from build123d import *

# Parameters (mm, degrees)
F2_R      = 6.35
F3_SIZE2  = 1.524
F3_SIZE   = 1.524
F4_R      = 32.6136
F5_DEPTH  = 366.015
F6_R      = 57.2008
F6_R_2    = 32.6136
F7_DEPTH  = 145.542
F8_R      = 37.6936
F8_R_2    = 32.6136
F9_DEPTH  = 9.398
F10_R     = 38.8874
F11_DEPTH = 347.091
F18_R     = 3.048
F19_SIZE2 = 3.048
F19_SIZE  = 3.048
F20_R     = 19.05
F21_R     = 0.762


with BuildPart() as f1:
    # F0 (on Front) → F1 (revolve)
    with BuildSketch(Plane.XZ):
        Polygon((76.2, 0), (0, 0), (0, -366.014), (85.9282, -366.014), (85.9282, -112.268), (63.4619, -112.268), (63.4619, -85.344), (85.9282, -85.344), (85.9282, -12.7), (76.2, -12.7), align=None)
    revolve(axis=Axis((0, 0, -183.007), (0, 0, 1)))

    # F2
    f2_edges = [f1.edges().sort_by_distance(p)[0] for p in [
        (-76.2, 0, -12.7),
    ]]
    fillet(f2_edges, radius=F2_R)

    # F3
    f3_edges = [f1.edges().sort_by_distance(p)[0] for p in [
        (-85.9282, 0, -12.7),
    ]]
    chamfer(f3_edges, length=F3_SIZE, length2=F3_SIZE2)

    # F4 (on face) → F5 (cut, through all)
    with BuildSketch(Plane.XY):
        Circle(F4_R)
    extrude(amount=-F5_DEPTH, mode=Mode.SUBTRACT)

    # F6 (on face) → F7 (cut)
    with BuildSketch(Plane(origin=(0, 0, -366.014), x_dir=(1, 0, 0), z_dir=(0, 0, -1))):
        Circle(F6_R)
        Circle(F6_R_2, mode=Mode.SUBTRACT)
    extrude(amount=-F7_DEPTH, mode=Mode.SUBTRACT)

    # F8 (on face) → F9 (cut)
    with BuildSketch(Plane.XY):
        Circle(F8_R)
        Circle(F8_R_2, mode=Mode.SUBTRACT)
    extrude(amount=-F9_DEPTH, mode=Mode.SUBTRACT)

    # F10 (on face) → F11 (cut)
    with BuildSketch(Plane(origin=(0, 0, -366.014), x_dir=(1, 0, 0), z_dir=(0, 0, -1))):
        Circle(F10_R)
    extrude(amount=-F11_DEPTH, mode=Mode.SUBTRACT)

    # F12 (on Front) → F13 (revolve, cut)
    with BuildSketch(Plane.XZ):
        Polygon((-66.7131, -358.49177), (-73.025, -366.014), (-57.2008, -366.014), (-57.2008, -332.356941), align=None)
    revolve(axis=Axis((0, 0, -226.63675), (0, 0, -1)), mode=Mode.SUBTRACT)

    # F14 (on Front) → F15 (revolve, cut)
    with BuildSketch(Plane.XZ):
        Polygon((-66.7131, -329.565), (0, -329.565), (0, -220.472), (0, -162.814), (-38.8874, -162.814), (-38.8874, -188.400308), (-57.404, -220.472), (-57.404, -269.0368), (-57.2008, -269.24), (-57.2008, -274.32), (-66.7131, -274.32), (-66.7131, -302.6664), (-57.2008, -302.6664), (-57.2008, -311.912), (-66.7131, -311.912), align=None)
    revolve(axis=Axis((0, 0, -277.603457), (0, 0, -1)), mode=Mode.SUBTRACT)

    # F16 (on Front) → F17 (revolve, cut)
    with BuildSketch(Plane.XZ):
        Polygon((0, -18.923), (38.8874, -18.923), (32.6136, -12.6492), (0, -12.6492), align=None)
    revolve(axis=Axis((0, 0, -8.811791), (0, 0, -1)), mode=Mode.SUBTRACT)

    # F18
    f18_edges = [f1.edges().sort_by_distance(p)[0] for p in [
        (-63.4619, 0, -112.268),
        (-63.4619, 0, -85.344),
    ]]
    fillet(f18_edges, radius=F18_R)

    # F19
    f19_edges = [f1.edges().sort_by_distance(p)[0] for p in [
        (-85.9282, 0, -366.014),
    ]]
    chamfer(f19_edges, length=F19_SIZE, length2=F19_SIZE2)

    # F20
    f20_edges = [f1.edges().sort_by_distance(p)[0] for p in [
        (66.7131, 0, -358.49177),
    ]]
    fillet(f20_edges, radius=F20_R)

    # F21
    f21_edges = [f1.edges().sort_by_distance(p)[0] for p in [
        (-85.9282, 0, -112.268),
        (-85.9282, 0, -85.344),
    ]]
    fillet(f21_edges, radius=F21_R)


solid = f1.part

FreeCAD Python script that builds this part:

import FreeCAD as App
import Part
import Sketcher
Q = App.Units.Quantity


def edges_at(feature, points):
    """Names of the edges that pass closest to the given points."""
    edges = feature.Shape.Edges
    near = lambda p: min(range(len(edges)), key=lambda i: edges[i].distToShape(Part.Vertex(*p))[0])
    return sorted({f"Edge{near(p) + 1}" for p in points})


def add_polygon(sketch, points):
    """Adds a closed chain of lines whose ends are joined by coincident constraints."""
    first, n = sketch.GeometryCount, len(points)
    for a, b in zip(points, points[1:] + points[:1]):
        sketch.addGeometry(Part.LineSegment(App.Vector(*a, 0), App.Vector(*b, 0)), False)
    for i in range(n):
        sketch.addConstraint(Sketcher.Constraint("Coincident", first + i, 2, first + (i + 1) % n, 1))

doc = App.newDocument("Part")
params = doc.addObject("Spreadsheet::Sheet", "Params")
for row, (alias, value) in enumerate([
    ("sketch1_width", "3 in"),
    ("sketch1_height", "0.5 in"),
    ("sketch1_height2", "14.41 in"),
    ("sketch1_height3", "9.99 in"),
    ("sketch1_height4", "1.06 in"),
    ("revolution_angle", "360 deg"),
    ("fillet_radius", "0.25 in"),
    ("chamfer_size", "0.06 in"),
    ("chamfer_size2", "0.06 in"),
    ("sketch2_diameter", "2.568 in"),
    ("sketch3_diameter", "4.504 in"),
    ("sketch3_diameter2", "2.568 in"),
    ("pocket2_length", "5.73 in"),
    ("sketch4_diameter", "2.968 in"),
    ("sketch4_diameter2", "2.568 in"),
    ("pocket3_length", "0.37 in"),
    ("sketch5_diameter", "3.062 in"),
    ("pocket4_length", "13.665 in"),
    ("sketch6_width", "0.623 in"),
    ("groove_angle", "360 deg"),
    ("sketch7_height", "0.2 in"),
    ("sketch7_width", "1.531 in"),
    ("sketch7_height2", "6.565 in"),
    ("sketch7_height3", "1.912 in"),
    ("sketch7_height4", "1.116 in"),
    ("groove2_angle", "360 deg"),
    ("sketch8_width", "1.531 in"),
    ("sketch8_width2", "1.284 in"),
    ("groove3_angle", "360 deg"),
    ("fillet2_radius", "0.12 in"),
    ("chamfer2_size", "0.12 in"),
    ("chamfer2_size2", "0.12 in"),
    ("fillet3_radius", "0.75 in"),
    ("fillet4_radius", "0.03 in"),
], start=1):
    params.set(f"A{row}", alias)
    params.set(f"B{row}", "=" + value)
    params.setAlias(f"B{row}", alias)

body = doc.addObject("PartDesign::Body", "Body")

# Sketch on XZ plane
sketch1 = body.newObject("Sketcher::SketchObject", "Sketch")
sketch1.AttachmentSupport = (doc.getObject("XZ_Plane"), [""])
sketch1.MapMode = "FlatFace"
add_polygon(sketch1, [(76, 0), (0, 0), (0, -366), (86, -366), (86, -112), (63, -112), (63, -85), (86, -85), (86, -13), (76, -13)])  # lines 0-9
sketch1.addConstraint([
    Sketcher.Constraint("Horizontal", 0),
    Sketcher.Constraint("Vertical", 1),
    Sketcher.Constraint("Horizontal", 2),
    Sketcher.Constraint("Vertical", 3),
    Sketcher.Constraint("Horizontal", 4),
    Sketcher.Constraint("Vertical", 5),
    Sketcher.Constraint("Horizontal", 6),
    Sketcher.Constraint("Vertical", 7),
    Sketcher.Constraint("Horizontal", 8),
    Sketcher.Constraint("Vertical", 9),
    Sketcher.Constraint("Coincident", 0, 2, -1, 1),
    Sketcher.Constraint("Vertical", 3, 2, 6, 2),
    Sketcher.Constraint("DistanceX", 0, 2, 0, 1, Q("3 in")),
    Sketcher.Constraint("DistanceY", 9, 1, 9, 2, Q("0.5 in")),
    Sketcher.Constraint("DistanceY", 1, 2, 1, 1, Q("14.41 in")),
    Sketcher.Constraint("DistanceY", 3, 1, 3, 2, Q("9.99 in")),
    Sketcher.Constraint("DistanceY", 5, 1, 5, 2, Q("1.06 in")),
    Sketcher.Constraint("DistanceX", 2, 1, 2, 2, Q("3.383 in")),
    Sketcher.Constraint("DistanceX", 4, 2, 4, 1, Q("0.8845 in")),
])
sketch1.setExpression("Constraints[22]", "Params.sketch1_width")
sketch1.setExpression("Constraints[23]", "Params.sketch1_height")
sketch1.setExpression("Constraints[24]", "Params.sketch1_height2")
sketch1.setExpression("Constraints[25]", "Params.sketch1_height3")
sketch1.setExpression("Constraints[26]", "Params.sketch1_height4")
revolution = body.newObject("PartDesign::Revolution", "Revolution")
revolution.Profile = sketch1
revolution.ReferenceAxis = (sketch1, ["V_Axis"])
revolution.setExpression("Angle", "Params.revolution_angle")
doc.recompute()

fillet = body.newObject("PartDesign::Fillet", "Fillet")
fillet.Base = (revolution, edges_at(revolution, [(-76.2, 0, -12.7)]))
fillet.setExpression("Radius", "Params.fillet_radius")
doc.recompute()

chamfer = body.newObject("PartDesign::Chamfer", "Chamfer")
chamfer.Base = (fillet, edges_at(fillet, [(-85.928, 0, -12.7)]))
chamfer.ChamferType = "Two distances"
chamfer.setExpression("Size", "Params.chamfer_size")
chamfer.setExpression("Size2", "Params.chamfer_size2")

# Sketch on XY plane
sketch2 = body.newObject("Sketcher::SketchObject", "Sketch001")
sketch2.AttachmentSupport = (doc.getObject("XY_Plane"), [""])
sketch2.MapMode = "FlatFace"
sketch2.addGeometry(Part.Circle(App.Vector(0, 0, 0), App.Vector(0, 0, 1), 33), False)
sketch2.addConstraint([
    Sketcher.Constraint("Coincident", 0, 3, -1, 1),
    Sketcher.Constraint("Diameter", 0, Q("2.568 in")),
])
sketch2.setExpression("Constraints[1]", "Params.sketch2_diameter")
pocket1 = body.newObject("PartDesign::Pocket", "Pocket")
pocket1.Profile = sketch2
pocket1.Type = "ThroughAll"

# Sketch on XY plane
sketch3 = body.newObject("Sketcher::SketchObject", "Sketch002")
sketch3.AttachmentSupport = (doc.getObject("XY_Plane"), [""])
sketch3.MapMode = "FlatFace"
sketch3.AttachmentOffset = App.Placement(App.Vector(0, 0, -14.41 * 25.4), App.Rotation())
sketch3.addGeometry([
    Part.Circle(App.Vector(0, 0, 0), App.Vector(0, 0, 1), 57),
    Part.Circle(App.Vector(0, 0, 0), App.Vector(0, 0, 1), 33),
], False)
sketch3.addConstraint([
    Sketcher.Constraint("Coincident", 0, 3, -1, 1),
    Sketcher.Constraint("Coincident", 1, 3, -1, 1),
    Sketcher.Constraint("Diameter", 0, Q("4.504 in")),
    Sketcher.Constraint("Diameter", 1, Q("2.568 in")),
])
sketch3.setExpression("Constraints[2]", "Params.sketch3_diameter")
sketch3.setExpression("Constraints[3]", "Params.sketch3_diameter2")
pocket2 = body.newObject("PartDesign::Pocket", "Pocket001")
pocket2.Profile = sketch3
pocket2.setExpression("Length", "Params.pocket2_length")
pocket2.Reversed = True

# Sketch on XY plane
sketch4 = body.newObject("Sketcher::SketchObject", "Sketch003")
sketch4.AttachmentSupport = (doc.getObject("XY_Plane"), [""])
sketch4.MapMode = "FlatFace"
sketch4.addGeometry([
    Part.Circle(App.Vector(0, 0, 0), App.Vector(0, 0, 1), 38),
    Part.Circle(App.Vector(0, 0, 0), App.Vector(0, 0, 1), 33),
], False)
sketch4.addConstraint([
    Sketcher.Constraint("Coincident", 0, 3, -1, 1),
    Sketcher.Constraint("Coincident", 1, 3, -1, 1),
    Sketcher.Constraint("Diameter", 0, Q("2.968 in")),
    Sketcher.Constraint("Diameter", 1, Q("2.568 in")),
])
sketch4.setExpression("Constraints[2]", "Params.sketch4_diameter")
sketch4.setExpression("Constraints[3]", "Params.sketch4_diameter2")
pocket3 = body.newObject("PartDesign::Pocket", "Pocket002")
pocket3.Profile = sketch4
pocket3.setExpression("Length", "Params.pocket3_length")

# Sketch on XY plane
sketch5 = body.newObject("Sketcher::SketchObject", "Sketch004")
sketch5.AttachmentSupport = (doc.getObject("XY_Plane"), [""])
sketch5.MapMode = "FlatFace"
sketch5.AttachmentOffset = App.Placement(App.Vector(0, 0, -14.41 * 25.4), App.Rotation())
sketch5.addGeometry(Part.Circle(App.Vector(0, 0, 0), App.Vector(0, 0, 1), 39), False)
sketch5.addConstraint([
    Sketcher.Constraint("Coincident", 0, 3, -1, 1),
    Sketcher.Constraint("Diameter", 0, Q("3.062 in")),
])
sketch5.setExpression("Constraints[1]", "Params.sketch5_diameter")
pocket4 = body.newObject("PartDesign::Pocket", "Pocket003")
pocket4.Profile = sketch5
pocket4.setExpression("Length", "Params.pocket4_length")
pocket4.Reversed = True

# Sketch on XZ plane
sketch6 = body.newObject("Sketcher::SketchObject", "Sketch005")
sketch6.AttachmentSupport = (doc.getObject("XZ_Plane"), [""])
sketch6.MapMode = "FlatFace"
add_polygon(sketch6, [(-67, -358), (-73, -366), (-57, -366), (-57, -332)])  # lines 0-3
sketch6.addConstraint([
    Sketcher.Constraint("Horizontal", 1),
    Sketcher.Constraint("Vertical", 2),
    Sketcher.Constraint("Angle", 0, Q("-129.999998 deg")),
    Sketcher.Constraint("Angle", 3, Q("-110 deg")),
    Sketcher.Constraint("DistanceX", 1, 1, 1, 2, Q("0.623 in")),
    Sketcher.Constraint("DistanceY", 0, 2, -1, 1, Q("14.41 in")),
    Sketcher.Constraint("DistanceX", 0, 2, -1, 1, Q("2.875 in")),
    Sketcher.Constraint("DistanceX", 3, 2, -1, 1, Q("2.6265 in")),
])
sketch6.setExpression("Constraints[8]", "Params.sketch6_width")
groove = body.newObject("PartDesign::Groove", "Groove")
groove.Profile = sketch6
groove.ReferenceAxis = (sketch6, ["V_Axis"])
groove.setExpression("Angle", "Params.groove_angle")

# Sketch on XZ plane
sketch7 = body.newObject("Sketcher::SketchObject", "Sketch006")
sketch7.AttachmentSupport = (doc.getObject("XZ_Plane"), [""])
sketch7.MapMode = "FlatFace"
add_polygon(sketch7, [(-66.71, -329.56), (0, -329.56), (0, -162.81), (-38.89, -162.81), (-38.89, -188.4), (-57.4, -220.47), (-57.4, -269.04), (-57.2, -269.24), (-57.2, -274.32), (-66.71, -274.32), (-66.71, -302.67), (-57.2, -302.67), (-57.2, -311.91), (-66.71, -311.91)])  # lines 0-13
sketch7.addConstraint([
    Sketcher.Constraint("Horizontal", 0),
    Sketcher.Constraint("Vertical", 1),
    Sketcher.Constraint("Horizontal", 2),
    Sketcher.Constraint("Vertical", 3),
    Sketcher.Constraint("Vertical", 5),
    Sketcher.Constraint("Vertical", 7),
    Sketcher.Constraint("Horizontal", 8),
    Sketcher.Constraint("Vertical", 9),
    Sketcher.Constraint("Horizontal", 10),
    Sketcher.Constraint("Vertical", 11),
    Sketcher.Constraint("Horizontal", 12),
    Sketcher.Constraint("Vertical", 13),
    Sketcher.Constraint("PointOnObject", 0, 2, -2),
    Sketcher.Constraint("Vertical", 7, 2, 10, 2),
    Sketcher.Constraint("Vertical", 9, 2, 12, 2),
    Sketcher.Constraint("DistanceY", 7, 2, 7, 1, Q("0.2 in")),
    Sketcher.Constraint("Angle", 4, Q("-120 deg")),
    Sketcher.Constraint("Angle", 6, Q("-45 deg")),
    Sketcher.Constraint("DistanceY", 6, 2, -1, 1, Q("10.6 in")),
    Sketcher.Constraint("DistanceX", 2, 2, 2, 1, Q("1.531 in")),
    Sketcher.Constraint("DistanceY", 1, 1, 1, 2, Q("6.565 in")),
    Sketcher.Constraint("DistanceY", 5, 2, 5, 1, Q("1.912 in")),
    Sketcher.Constraint("DistanceY", 9, 2, 9, 1, Q("1.116 in")),
    Sketcher.Constraint("DistanceY", 11, 2, 11, 1, Q("0.364 in")),
    Sketcher.Constraint("DistanceY", 13, 2, 13, 1, Q("0.695 in")),
    Sketcher.Constraint("DistanceX", 4, 2, -1, 1, Q("2.26 in")),
    Sketcher.Constraint("DistanceY", 4, 2, -1, 1, Q("8.68 in")),
    Sketcher.Constraint("DistanceX", 0, 1, 0, 2, Q("2.6265 in")),
])
sketch7.setExpression("Constraints[29]", "Params.sketch7_height")
sketch7.setExpression("Constraints[33]", "Params.sketch7_width")
sketch7.setExpression("Constraints[34]", "Params.sketch7_height2")
sketch7.setExpression("Constraints[35]", "Params.sketch7_height3")
sketch7.setExpression("Constraints[36]", "Params.sketch7_height4")
groove2 = body.newObject("PartDesign::Groove", "Groove001")
groove2.Profile = sketch7
groove2.ReferenceAxis = (sketch7, ["V_Axis"])
groove2.setExpression("Angle", "Params.groove2_angle")

# Sketch on XZ plane
sketch8 = body.newObject("Sketcher::SketchObject", "Sketch007")
sketch8.AttachmentSupport = (doc.getObject("XZ_Plane"), [""])
sketch8.MapMode = "FlatFace"
add_polygon(sketch8, [(0, -19), (39, -19), (33, -13), (0, -13)])  # lines 0-3
sketch8.addConstraint([
    Sketcher.Constraint("Horizontal", 0),
    Sketcher.Constraint("Horizontal", 2),
    Sketcher.Constraint("Vertical", 3),
    Sketcher.Constraint("PointOnObject", 2, 2, -2),
    Sketcher.Constraint("Angle", 1, Q("135 deg")),
    Sketcher.Constraint("DistanceX", 0, 1, 0, 2, Q("1.531 in")),
    Sketcher.Constraint("DistanceX", 2, 2, 2, 1, Q("1.284 in")),
    Sketcher.Constraint("DistanceY", 0, 2, -1, 1, Q("0.745 in")),
])
sketch8.setExpression("Constraints[9]", "Params.sketch8_width")
sketch8.setExpression("Constraints[10]", "Params.sketch8_width2")
groove3 = body.newObject("PartDesign::Groove", "Groove002")
groove3.Profile = sketch8
groove3.ReferenceAxis = (sketch8, ["V_Axis"])
groove3.setExpression("Angle", "Params.groove3_angle")
doc.recompute()

fillet2 = body.newObject("PartDesign::Fillet", "Fillet001")
fillet2.Base = (groove3, edges_at(groove3, [(-63.462, 0, -112.268), (-63.462, 0, -85.344)]))
fillet2.setExpression("Radius", "Params.fillet2_radius")
doc.recompute()

chamfer2 = body.newObject("PartDesign::Chamfer", "Chamfer001")
chamfer2.Base = (fillet2, edges_at(fillet2, [(-85.928, 0, -366.014)]))
chamfer2.ChamferType = "Two distances"
chamfer2.setExpression("Size", "Params.chamfer2_size")
chamfer2.setExpression("Size2", "Params.chamfer2_size2")
doc.recompute()

fillet3 = body.newObject("PartDesign::Fillet", "Fillet002")
fillet3.Base = (chamfer2, edges_at(chamfer2, [(66.713, 0, -358.492)]))
fillet3.setExpression("Radius", "Params.fillet3_radius")
doc.recompute()

fillet4 = body.newObject("PartDesign::Fillet", "Fillet003")
fillet4.Base = (fillet3, edges_at(fillet3, [(-85.928, 0, -112.268), (-85.928, 0, -85.344)]))
fillet4.setExpression("Radius", "Params.fillet4_radius")

doc.recompute()
